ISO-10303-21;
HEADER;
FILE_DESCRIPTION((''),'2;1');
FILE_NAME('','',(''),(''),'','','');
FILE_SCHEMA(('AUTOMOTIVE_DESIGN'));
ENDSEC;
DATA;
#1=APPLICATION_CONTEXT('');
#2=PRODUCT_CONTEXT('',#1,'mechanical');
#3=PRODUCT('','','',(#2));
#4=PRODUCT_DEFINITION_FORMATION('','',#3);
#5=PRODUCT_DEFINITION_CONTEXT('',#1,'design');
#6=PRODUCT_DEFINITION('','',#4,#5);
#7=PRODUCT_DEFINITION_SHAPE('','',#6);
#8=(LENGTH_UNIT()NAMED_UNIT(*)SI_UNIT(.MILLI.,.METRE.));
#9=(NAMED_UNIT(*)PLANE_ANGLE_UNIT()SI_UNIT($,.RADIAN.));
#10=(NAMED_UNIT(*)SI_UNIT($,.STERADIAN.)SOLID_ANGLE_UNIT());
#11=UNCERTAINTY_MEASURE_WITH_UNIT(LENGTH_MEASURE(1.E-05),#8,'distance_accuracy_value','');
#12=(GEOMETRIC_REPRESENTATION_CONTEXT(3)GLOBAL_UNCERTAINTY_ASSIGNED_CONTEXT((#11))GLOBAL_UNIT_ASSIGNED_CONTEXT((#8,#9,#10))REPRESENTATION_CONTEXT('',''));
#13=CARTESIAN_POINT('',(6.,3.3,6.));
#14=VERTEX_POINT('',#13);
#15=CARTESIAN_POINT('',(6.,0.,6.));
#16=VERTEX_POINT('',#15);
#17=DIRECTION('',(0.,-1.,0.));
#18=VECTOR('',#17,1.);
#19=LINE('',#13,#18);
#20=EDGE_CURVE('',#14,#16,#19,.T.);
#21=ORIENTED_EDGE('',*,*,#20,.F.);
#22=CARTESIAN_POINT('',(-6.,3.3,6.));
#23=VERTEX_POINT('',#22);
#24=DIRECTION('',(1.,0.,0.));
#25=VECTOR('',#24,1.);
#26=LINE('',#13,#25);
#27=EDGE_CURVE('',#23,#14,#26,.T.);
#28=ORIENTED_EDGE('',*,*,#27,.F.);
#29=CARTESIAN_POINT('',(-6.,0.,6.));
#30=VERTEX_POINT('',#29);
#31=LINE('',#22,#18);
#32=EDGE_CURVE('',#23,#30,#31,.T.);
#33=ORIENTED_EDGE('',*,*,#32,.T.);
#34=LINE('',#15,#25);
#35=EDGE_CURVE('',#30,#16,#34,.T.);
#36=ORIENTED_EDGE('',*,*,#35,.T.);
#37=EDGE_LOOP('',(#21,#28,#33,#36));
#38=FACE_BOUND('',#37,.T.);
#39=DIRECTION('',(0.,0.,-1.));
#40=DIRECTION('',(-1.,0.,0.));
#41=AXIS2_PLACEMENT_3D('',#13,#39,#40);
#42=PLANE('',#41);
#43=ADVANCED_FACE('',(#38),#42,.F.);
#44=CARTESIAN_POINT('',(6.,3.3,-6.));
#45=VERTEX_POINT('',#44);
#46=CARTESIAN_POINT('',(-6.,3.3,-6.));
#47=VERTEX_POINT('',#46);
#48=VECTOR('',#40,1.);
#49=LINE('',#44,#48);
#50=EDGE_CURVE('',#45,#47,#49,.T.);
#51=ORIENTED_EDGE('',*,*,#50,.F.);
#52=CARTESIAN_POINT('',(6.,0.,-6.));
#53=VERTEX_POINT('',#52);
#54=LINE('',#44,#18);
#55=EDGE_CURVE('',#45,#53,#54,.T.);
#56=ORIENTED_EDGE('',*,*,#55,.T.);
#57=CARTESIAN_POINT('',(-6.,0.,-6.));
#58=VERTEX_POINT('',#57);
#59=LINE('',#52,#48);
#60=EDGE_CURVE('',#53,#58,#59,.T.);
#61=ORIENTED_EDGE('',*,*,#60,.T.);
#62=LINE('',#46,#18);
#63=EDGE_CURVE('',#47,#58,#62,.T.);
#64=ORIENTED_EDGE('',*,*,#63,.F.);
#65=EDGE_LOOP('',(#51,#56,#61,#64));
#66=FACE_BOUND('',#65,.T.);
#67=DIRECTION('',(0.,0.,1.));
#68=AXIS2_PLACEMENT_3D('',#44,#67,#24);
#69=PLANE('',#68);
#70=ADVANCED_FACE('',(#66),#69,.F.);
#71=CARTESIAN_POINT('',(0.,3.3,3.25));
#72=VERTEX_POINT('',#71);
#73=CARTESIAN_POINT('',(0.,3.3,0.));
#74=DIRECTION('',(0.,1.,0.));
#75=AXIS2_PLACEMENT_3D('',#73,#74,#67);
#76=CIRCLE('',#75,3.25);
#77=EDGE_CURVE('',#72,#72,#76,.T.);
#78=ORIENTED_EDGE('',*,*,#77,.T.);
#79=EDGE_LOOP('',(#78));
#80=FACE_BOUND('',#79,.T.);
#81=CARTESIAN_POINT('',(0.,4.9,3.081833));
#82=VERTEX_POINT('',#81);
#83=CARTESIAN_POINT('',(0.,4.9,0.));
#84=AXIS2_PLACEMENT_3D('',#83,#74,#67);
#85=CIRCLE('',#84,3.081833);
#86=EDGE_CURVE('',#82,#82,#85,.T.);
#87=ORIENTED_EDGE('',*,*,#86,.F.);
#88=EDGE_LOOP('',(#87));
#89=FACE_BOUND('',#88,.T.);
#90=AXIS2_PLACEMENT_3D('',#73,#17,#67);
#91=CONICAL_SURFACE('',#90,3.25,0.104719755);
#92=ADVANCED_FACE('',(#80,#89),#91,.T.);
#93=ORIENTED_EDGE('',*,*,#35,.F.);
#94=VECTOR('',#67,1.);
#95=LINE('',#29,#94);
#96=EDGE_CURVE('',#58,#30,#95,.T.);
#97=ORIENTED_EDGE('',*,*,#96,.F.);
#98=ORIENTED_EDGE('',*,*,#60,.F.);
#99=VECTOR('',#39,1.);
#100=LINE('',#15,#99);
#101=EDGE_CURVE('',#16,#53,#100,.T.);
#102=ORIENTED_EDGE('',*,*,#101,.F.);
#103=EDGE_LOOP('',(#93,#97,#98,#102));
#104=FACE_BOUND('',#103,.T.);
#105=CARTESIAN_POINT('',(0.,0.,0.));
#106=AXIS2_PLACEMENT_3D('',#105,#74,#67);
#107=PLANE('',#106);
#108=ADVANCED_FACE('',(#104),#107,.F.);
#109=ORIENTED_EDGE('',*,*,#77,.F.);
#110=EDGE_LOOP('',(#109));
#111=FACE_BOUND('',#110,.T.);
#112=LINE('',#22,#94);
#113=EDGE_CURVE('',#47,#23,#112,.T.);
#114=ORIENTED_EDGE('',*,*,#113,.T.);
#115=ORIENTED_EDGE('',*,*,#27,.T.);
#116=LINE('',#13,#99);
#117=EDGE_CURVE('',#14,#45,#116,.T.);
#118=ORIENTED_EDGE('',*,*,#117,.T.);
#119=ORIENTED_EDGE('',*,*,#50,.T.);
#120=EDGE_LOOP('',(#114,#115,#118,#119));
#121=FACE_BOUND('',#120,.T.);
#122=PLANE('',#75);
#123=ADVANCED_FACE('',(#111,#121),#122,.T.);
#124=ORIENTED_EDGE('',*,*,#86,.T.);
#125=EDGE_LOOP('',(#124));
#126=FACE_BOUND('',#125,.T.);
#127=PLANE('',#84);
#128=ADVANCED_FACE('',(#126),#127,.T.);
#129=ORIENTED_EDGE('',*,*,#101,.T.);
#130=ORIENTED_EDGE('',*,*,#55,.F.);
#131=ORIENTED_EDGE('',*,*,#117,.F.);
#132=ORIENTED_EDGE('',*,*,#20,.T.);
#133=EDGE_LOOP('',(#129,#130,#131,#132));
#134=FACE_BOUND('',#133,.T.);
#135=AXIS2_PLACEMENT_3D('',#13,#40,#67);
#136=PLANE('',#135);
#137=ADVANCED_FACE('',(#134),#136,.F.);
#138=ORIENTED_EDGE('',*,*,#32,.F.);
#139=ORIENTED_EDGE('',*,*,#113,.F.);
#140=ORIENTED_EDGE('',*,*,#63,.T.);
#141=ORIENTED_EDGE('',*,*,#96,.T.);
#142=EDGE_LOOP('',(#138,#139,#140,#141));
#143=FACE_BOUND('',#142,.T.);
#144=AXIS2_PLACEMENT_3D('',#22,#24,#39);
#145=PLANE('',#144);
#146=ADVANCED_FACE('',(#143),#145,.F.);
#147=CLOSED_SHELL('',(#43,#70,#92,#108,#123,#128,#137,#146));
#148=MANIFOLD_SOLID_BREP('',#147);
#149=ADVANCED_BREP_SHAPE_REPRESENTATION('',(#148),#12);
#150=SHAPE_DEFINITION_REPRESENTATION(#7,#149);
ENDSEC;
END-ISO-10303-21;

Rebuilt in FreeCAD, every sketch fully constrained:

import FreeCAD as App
import Part
import Sketcher
from FreeCAD import Vector
Q = App.Units.Quantity

doc = App.newDocument("Part")
body = doc.addObject("PartDesign::Body", "Body")

# Sketch on XZ plane
sketch1 = body.newObject("Sketcher::SketchObject", "Sketch")
sketch1.AttachmentSupport = (doc.getObject("XZ_Plane"), [""])
sketch1.MapMode = "FlatFace"
sketch1.addGeometry([
    Part.LineSegment(Vector(-6, -6, 0), Vector(-6, 6, 0)),
    Part.LineSegment(Vector(-6, 6, 0), Vector(6, 6, 0)),
    Part.LineSegment(Vector(6, 6, 0), Vector(6, -6, 0)),
    Part.LineSegment(Vector(6, -6, 0), Vector(-6, -6, 0)),
], False)
sketch1.addConstraint([
    Sketcher.Constraint("Coincident", 0, 2, 1, 1),
    Sketcher.Constraint("Coincident", 1, 2, 2, 1),
    Sketcher.Constraint("Coincident", 2, 2, 3, 1),
    Sketcher.Constraint("Coincident", 3, 2, 0, 1),
    Sketcher.Constraint("Vertical", 0),
    Sketcher.Constraint("Horizontal", 1),
    Sketcher.Constraint("Vertical", 2),
    Sketcher.Constraint("Horizontal", 3),
    Sketcher.Constraint("Symmetric", 0, 2, 2, 2, -1, 1),
    Sketcher.Constraint("Equal", 3, 0),
    Sketcher.Constraint("DistanceX", 1, 1, 1, 2, Q("12 mm")),
])
pad1 = body.newObject("PartDesign::Pad", "Pad")
pad1.Profile = sketch1
pad1.Length = 3.3
pad1.Reversed = True

# Sketch on XZ plane
sketch2 = body.newObject("Sketcher::SketchObject", "Sketch001")
sketch2.AttachmentSupport = (doc.getObject("XZ_Plane"), [""])
sketch2.MapMode = "FlatFace"
sketch2.AttachmentOffset = App.Placement(Vector(0, 0, -3.3), App.Rotation())
sketch2.addGeometry(Part.Circle(Vector(0, 0, 0), Vector(0, 0, 1), 3.2), False)
sketch2.addConstraint([
    Sketcher.Constraint("Coincident", 0, 3, -1, 1),
    Sketcher.Constraint("Diameter", 0, Q("6.5 mm")),
])
pad2 = body.newObject("PartDesign::Pad", "Pad001")
pad2.Profile = sketch2
pad2.Length = 1.6
pad2.Reversed = True
pad2.TaperAngle = -6

doc.recompute()
